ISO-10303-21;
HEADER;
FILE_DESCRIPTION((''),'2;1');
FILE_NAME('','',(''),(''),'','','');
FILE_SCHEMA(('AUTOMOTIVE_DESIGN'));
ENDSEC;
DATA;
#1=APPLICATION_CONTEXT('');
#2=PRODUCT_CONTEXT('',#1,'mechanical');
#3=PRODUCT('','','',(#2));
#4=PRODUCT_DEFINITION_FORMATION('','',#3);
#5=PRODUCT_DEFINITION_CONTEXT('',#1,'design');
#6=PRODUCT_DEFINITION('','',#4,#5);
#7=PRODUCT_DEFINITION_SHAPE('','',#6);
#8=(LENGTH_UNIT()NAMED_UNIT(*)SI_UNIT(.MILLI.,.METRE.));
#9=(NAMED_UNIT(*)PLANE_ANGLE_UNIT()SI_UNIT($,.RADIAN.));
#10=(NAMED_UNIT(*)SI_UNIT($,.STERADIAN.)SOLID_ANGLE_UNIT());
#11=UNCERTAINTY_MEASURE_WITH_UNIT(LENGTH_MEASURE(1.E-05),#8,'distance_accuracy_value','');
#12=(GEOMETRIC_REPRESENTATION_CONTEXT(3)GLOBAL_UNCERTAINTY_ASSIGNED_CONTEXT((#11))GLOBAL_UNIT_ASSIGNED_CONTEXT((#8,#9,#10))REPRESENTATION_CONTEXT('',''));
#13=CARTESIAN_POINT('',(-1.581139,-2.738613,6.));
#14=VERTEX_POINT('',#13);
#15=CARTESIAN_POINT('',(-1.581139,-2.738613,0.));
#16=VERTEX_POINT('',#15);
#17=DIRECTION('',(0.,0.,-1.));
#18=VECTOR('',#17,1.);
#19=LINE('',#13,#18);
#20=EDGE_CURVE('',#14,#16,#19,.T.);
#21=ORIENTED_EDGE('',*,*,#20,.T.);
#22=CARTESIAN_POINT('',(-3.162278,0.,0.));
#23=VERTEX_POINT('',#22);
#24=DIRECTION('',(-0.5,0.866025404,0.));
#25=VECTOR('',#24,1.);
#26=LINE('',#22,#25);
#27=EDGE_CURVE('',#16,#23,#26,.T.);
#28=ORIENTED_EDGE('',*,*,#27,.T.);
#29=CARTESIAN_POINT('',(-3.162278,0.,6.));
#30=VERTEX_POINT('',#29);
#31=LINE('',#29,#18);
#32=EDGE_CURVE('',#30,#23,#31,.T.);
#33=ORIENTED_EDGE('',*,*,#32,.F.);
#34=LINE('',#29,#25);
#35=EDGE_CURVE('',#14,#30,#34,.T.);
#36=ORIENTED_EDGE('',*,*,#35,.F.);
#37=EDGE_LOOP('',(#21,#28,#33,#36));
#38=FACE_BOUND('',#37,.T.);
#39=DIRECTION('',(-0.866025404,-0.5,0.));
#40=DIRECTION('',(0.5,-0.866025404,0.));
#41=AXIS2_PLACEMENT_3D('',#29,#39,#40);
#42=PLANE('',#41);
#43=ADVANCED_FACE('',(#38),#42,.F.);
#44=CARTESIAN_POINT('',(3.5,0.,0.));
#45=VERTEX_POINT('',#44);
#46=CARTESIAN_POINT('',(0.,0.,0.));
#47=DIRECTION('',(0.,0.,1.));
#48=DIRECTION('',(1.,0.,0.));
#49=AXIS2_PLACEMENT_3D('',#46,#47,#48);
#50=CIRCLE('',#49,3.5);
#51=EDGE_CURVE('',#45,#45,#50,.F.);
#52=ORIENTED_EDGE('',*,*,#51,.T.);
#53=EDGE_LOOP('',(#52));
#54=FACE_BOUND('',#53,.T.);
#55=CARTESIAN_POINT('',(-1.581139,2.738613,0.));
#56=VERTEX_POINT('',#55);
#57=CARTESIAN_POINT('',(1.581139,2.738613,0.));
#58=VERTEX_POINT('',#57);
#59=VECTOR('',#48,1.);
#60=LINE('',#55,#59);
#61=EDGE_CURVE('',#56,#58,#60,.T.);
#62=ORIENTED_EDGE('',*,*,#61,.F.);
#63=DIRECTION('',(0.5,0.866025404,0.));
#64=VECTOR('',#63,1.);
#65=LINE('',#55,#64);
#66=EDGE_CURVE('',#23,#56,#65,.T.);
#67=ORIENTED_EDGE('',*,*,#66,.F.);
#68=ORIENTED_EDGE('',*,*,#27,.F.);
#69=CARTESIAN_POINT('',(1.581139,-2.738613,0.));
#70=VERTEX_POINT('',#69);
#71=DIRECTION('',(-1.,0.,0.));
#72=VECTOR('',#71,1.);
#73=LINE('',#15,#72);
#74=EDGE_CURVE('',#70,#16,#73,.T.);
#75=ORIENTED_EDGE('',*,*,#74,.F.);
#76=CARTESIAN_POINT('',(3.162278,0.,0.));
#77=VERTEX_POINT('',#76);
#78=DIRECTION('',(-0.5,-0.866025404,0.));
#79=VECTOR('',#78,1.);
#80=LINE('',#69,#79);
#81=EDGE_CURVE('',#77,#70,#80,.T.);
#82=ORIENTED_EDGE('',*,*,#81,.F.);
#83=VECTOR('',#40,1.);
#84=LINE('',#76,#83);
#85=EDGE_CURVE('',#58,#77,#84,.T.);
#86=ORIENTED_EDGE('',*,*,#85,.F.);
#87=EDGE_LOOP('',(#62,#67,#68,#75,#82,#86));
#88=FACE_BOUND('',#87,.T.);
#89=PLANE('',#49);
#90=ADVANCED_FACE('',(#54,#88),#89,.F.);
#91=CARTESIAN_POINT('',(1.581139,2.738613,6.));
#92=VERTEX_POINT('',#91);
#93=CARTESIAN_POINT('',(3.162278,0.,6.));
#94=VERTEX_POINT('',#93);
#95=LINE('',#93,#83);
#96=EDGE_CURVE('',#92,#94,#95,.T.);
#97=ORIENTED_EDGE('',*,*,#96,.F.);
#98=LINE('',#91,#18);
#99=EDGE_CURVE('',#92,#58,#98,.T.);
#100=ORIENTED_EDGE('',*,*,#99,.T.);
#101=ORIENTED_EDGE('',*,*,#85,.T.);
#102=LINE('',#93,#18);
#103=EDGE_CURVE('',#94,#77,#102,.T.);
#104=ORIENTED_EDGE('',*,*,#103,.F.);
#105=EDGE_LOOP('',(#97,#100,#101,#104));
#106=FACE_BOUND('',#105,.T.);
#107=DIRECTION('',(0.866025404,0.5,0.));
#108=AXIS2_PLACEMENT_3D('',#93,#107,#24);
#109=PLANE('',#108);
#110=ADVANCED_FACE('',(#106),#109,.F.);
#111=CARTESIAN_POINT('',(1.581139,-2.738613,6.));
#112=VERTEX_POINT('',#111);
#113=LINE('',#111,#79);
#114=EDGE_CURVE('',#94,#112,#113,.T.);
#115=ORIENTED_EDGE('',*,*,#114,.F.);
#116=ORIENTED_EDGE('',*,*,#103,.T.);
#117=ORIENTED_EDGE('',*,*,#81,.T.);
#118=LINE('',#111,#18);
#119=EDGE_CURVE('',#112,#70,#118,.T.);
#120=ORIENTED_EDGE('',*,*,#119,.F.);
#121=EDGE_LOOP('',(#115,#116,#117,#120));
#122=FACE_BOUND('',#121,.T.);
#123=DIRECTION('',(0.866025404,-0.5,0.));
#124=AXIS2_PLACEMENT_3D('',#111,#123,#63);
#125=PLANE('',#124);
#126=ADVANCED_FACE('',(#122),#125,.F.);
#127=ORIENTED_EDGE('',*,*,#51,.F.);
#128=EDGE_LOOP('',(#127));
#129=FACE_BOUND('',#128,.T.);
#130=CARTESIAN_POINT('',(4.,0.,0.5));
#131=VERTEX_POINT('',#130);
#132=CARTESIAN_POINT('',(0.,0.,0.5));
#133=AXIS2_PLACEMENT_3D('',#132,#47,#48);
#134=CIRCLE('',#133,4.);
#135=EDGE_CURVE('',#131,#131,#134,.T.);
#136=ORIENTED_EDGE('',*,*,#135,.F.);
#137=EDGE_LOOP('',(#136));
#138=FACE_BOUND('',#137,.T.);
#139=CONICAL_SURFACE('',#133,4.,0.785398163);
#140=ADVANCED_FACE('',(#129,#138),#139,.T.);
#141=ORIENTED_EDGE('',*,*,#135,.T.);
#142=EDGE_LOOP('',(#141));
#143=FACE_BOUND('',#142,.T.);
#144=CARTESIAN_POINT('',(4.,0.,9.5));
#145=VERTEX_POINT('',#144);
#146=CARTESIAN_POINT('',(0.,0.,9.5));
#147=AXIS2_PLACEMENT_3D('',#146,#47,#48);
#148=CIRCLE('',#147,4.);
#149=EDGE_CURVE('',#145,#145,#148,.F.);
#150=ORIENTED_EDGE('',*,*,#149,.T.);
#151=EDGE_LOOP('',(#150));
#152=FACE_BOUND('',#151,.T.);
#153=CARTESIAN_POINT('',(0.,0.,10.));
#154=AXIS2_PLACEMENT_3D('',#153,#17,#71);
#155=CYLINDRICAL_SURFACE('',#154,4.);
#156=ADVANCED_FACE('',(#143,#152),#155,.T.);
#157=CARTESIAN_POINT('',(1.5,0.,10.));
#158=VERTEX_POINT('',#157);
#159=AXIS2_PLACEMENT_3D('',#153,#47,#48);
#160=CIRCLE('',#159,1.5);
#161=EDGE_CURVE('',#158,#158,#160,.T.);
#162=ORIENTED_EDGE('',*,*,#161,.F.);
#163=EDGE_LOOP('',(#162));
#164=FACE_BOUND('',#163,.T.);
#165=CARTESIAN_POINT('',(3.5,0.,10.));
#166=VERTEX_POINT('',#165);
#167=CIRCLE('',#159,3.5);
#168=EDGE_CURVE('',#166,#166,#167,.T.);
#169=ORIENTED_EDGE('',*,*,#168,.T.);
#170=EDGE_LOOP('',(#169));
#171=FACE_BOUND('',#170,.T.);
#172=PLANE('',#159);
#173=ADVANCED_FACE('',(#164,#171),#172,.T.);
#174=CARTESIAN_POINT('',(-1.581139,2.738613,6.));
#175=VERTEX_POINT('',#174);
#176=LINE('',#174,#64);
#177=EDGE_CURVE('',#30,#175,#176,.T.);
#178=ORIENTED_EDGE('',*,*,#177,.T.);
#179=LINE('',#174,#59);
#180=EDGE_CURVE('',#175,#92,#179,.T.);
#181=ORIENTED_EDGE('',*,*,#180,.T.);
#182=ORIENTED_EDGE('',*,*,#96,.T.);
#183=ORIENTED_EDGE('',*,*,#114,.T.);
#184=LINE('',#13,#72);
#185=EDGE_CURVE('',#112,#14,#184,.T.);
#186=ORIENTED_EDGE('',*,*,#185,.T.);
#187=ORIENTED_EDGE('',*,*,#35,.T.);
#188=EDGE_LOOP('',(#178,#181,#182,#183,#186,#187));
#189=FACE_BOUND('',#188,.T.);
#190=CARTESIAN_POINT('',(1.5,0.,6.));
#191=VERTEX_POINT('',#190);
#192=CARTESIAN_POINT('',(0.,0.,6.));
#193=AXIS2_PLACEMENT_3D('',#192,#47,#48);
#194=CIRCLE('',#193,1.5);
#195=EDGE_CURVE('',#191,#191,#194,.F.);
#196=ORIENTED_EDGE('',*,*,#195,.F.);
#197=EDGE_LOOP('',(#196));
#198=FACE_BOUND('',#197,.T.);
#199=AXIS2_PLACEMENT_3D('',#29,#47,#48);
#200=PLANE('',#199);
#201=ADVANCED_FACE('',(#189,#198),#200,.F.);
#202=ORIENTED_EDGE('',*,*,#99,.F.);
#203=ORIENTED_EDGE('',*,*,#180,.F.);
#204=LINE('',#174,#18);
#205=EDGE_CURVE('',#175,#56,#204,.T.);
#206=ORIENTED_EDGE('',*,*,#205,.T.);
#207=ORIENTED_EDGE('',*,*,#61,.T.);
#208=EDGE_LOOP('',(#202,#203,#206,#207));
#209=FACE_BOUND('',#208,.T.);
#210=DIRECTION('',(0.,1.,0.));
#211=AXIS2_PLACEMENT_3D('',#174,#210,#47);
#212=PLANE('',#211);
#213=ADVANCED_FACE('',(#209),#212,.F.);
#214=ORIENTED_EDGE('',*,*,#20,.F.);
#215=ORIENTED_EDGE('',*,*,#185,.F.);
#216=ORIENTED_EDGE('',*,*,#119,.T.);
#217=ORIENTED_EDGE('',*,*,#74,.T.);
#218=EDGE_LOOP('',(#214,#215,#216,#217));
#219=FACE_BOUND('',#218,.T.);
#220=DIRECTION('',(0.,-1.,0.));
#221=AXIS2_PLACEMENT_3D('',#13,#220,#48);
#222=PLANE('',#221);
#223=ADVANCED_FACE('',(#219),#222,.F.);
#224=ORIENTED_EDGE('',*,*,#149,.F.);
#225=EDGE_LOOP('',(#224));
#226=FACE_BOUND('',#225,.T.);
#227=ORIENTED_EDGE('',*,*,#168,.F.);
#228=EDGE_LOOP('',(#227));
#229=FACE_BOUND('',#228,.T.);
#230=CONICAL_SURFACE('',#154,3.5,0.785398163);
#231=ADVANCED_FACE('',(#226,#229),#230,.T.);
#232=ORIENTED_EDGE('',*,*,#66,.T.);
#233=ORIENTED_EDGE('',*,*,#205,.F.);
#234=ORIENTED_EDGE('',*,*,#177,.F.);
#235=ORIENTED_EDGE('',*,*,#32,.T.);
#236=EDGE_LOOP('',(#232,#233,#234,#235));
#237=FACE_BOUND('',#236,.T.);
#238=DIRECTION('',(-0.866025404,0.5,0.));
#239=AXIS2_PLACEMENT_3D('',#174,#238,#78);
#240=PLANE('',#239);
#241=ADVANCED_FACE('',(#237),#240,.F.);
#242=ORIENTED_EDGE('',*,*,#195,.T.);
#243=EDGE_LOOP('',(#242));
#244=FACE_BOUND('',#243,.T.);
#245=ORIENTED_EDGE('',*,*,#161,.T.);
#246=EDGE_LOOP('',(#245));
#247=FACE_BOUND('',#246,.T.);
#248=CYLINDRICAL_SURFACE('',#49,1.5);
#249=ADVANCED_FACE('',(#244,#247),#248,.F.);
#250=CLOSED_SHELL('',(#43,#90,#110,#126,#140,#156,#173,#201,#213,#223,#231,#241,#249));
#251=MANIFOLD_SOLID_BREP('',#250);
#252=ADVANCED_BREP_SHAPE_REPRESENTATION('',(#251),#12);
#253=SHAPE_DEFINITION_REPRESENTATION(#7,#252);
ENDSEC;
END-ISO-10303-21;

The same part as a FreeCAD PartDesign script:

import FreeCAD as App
import Part
import Sketcher

V = App.Vector
Q = App.Units.Quantity


def edges_at(feature, points):
    """Names of the edges that pass closest to the given points."""
    edges = feature.Shape.Edges
    near = lambda p: min(range(len(edges)), key=lambda i: edges[i].distToShape(Part.Vertex(*p))[0])
    return sorted({f"Edge{near(p) + 1}" for p in points})


def add_polygon(sketch, points):
    """Adds a closed chain of lines whose ends are joined by coincident constraints."""
    first, n = sketch.GeometryCount, len(points)
    for a, b in zip(points, points[1:] + points[:1]):
        sketch.addGeometry(Part.LineSegment(App.Vector(*a, 0), App.Vector(*b, 0)), False)
    for i in range(n):
        sketch.addConstraint(Sketcher.Constraint("Coincident", first + i, 2, first + (i + 1) % n, 1))

doc = App.newDocument("Part")
body = doc.addObject("PartDesign::Body", "Body")

# Sketch on XY plane
sketch1 = body.newObject("Sketcher::SketchObject", "Sketch")
sketch1.AttachmentSupport = (doc.getObject("XY_Plane"), [""])
sketch1.MapMode = "FlatFace"
sketch1.addGeometry(Part.Circle(V(0, 0, 0), V(0, 0, 1), 4), False)
sketch1.addConstraint([
    Sketcher.Constraint("Coincident", 0, 3, -1, 1),
    Sketcher.Constraint("Diameter", 0, 8.0),
])
pad1 = body.newObject("PartDesign::Pad", "Pad")
pad1.Profile = sketch1
pad1.Length = 10
doc.recompute()

chamfer = body.newObject("PartDesign::Chamfer", "Chamfer")
chamfer.Base = (pad1, edges_at(pad1, [(-4, 0, 0), (-4, 0, 10)]))
chamfer.Size = 0.5

# Sketch on XY plane
sketch2 = body.newObject("Sketcher::SketchObject", "Sketch001")
sketch2.AttachmentSupport = (doc.getObject("XY_Plane"), [""])
sketch2.MapMode = "FlatFace"
sketch2.AttachmentOffset = App.Placement(V(0, 0, 10), App.Rotation())
sketch2.addGeometry(Part.Circle(V(0, 0, 0), V(0, 0, 1), 1.5), False)
sketch2.addConstraint([
    Sketcher.Constraint("Coincident", 0, 3, -1, 1),
    Sketcher.Constraint("Diameter", 0, 3.0),
])
pocket1 = body.newObject("PartDesign::Pocket", "Pocket")
pocket1.Profile = sketch2
pocket1.Type = "ThroughAll"

# Sketch on XY plane
sketch3 = body.newObject("Sketcher::SketchObject", "Sketch002")
sketch3.AttachmentSupport = (doc.getObject("XY_Plane"), [""])
sketch3.MapMode = "FlatFace"
add_polygon(sketch3, [(-1.581139, 2.738613), (1.581139, 2.738613), (3.162278, 0), (1.581139, -2.738613), (-1.581139, -2.738613), (-3.162278, 0)])  # lines 0-5
sketch3.addConstraint([
    Sketcher.Constraint("Horizontal", 0),
    Sketcher.Constraint("Horizontal", 3),
    Sketcher.Constraint("Symmetric", 0, 2, 3, 2, -1, 1),
    Sketcher.Constraint("Symmetric", 1, 2, 4, 2, -1, 1),
    Sketcher.Constraint("PointOnObject", 1, 2, -1),
    Sketcher.Constraint("Parallel", 2, 5),
    Sketcher.Constraint("Vertical", 0, 2, 2, 2),
    Sketcher.Constraint("Angle", 1, Q("-60 deg")),
    Sketcher.Constraint("DistanceX", 0, 1, 0, 2, 3.162278),
    Sketcher.Constraint("DistanceX", 0, 2, 1, 2, 1.581139),
])
pocket2 = body.newObject("PartDesign::Pocket", "Pocket001")
pocket2.Profile = sketch3
pocket2.Length = 6
pocket2.Reversed = True

doc.recompute()
